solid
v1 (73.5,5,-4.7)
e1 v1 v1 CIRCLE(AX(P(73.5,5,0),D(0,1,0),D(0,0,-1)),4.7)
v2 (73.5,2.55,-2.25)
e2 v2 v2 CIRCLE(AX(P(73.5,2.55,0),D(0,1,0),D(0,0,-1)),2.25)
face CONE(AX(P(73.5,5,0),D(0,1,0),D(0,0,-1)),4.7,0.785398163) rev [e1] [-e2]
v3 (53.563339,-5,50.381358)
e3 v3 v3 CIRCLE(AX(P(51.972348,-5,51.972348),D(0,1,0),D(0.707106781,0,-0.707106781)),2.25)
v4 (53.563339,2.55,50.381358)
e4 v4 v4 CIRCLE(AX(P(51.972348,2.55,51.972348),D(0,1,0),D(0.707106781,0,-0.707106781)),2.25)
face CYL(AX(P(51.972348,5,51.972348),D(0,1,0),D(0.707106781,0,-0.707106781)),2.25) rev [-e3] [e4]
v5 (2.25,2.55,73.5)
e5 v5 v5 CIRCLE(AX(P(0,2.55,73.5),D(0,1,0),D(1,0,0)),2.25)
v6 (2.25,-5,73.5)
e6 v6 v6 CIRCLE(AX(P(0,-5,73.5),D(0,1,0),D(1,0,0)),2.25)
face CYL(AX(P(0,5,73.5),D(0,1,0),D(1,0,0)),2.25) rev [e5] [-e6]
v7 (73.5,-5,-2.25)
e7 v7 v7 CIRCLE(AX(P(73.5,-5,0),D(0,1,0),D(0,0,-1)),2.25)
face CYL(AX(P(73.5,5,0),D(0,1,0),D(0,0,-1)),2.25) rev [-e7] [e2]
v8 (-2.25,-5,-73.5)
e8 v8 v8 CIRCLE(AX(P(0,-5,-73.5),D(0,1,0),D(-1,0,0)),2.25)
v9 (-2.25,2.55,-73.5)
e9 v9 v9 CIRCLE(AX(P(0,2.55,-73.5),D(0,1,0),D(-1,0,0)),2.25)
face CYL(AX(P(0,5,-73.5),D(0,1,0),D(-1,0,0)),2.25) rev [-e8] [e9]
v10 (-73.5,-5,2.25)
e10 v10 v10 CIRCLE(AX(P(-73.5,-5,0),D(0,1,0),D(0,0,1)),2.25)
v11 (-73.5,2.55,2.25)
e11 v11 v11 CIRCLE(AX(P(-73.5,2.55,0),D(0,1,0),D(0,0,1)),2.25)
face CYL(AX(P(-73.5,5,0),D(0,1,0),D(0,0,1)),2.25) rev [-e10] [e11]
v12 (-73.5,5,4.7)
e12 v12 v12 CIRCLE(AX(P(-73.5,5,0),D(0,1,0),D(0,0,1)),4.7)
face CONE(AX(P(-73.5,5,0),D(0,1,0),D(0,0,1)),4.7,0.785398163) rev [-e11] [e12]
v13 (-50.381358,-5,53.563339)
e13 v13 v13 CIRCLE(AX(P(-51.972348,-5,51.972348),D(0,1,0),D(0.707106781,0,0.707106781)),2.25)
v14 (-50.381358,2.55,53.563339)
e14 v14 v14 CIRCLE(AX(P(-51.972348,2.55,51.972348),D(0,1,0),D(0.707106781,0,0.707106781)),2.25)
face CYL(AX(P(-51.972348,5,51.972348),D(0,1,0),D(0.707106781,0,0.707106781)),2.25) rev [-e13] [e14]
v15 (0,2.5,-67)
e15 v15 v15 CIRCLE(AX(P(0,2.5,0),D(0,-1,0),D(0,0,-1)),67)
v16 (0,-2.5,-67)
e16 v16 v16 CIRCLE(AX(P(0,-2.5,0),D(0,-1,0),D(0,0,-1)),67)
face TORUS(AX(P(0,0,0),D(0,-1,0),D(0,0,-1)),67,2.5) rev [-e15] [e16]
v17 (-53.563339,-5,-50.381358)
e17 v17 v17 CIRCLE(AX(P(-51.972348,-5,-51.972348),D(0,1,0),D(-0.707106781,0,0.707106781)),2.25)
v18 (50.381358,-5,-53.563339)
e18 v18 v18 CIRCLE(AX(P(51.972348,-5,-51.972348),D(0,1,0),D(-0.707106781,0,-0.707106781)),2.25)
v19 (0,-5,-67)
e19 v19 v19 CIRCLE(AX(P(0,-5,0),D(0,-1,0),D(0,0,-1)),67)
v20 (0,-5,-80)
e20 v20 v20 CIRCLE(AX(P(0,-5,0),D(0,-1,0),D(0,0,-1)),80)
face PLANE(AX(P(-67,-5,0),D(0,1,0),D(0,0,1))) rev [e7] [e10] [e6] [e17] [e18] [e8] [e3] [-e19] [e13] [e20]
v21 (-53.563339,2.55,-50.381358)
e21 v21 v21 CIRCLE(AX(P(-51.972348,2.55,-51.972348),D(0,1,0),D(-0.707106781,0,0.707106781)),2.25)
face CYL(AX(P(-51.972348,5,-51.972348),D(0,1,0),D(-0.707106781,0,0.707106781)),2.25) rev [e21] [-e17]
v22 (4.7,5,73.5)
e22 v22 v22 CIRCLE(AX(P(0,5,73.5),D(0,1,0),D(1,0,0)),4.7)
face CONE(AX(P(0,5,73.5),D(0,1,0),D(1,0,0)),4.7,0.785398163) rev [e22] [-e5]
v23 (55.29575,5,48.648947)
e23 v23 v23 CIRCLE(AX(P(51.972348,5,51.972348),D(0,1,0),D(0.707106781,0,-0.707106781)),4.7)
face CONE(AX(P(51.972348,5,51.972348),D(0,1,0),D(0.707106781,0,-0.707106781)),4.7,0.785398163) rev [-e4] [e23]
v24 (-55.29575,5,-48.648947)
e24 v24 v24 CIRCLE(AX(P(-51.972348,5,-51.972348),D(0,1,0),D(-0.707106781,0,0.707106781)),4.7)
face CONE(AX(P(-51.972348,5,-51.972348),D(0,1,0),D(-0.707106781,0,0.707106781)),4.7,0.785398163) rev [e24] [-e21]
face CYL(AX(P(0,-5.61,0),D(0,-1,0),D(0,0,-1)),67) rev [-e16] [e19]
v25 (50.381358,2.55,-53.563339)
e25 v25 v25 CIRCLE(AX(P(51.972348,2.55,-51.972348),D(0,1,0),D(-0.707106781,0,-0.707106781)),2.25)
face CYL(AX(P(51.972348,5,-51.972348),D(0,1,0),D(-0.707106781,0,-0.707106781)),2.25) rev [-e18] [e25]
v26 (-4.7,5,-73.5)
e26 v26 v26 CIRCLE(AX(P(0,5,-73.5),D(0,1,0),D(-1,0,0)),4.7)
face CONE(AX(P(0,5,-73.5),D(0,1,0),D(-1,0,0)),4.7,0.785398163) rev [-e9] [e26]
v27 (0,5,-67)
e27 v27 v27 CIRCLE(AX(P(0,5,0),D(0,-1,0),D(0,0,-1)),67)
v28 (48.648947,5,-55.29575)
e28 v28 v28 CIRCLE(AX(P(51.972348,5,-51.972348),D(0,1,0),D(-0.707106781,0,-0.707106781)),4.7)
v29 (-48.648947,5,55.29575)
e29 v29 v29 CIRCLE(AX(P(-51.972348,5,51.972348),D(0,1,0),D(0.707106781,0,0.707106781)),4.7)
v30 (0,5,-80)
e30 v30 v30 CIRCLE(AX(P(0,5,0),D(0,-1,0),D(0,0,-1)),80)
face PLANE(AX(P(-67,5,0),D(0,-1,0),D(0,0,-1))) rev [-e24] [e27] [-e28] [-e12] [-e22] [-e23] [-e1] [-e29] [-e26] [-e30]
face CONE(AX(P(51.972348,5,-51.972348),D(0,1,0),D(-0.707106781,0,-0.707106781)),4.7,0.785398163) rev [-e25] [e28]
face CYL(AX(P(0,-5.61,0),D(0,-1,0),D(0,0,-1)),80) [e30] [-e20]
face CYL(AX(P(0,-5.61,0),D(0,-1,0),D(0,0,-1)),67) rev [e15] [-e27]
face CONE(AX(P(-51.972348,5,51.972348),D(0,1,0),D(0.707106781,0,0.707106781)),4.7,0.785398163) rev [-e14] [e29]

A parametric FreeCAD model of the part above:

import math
import FreeCAD as App
import Part
import Sketcher
from FreeCAD import Vector
Q = App.Units.Quantity

doc = App.newDocument("Part")
body = doc.addObject("PartDesign::Body", "Body")

# Sketch on XY plane
sketch1 = body.newObject("Sketcher::SketchObject", "Sketch")
sketch1.AttachmentSupport = (doc.getObject("XY_Plane"), [""])
sketch1.MapMode = "FlatFace"
sketch1.addGeometry([
    Part.LineSegment(Vector(-67, -5, 0), Vector(-67, -2.5, 0)),  # 0
    Part.ArcOfCircle(Part.Circle(Vector(-67, 0, 0), Vector(0, 0, 1), 2.5), math.radians(90), math.radians(270)),  # 1
    Part.LineSegment(Vector(-67, 2.5, 0), Vector(-67, 5, 0)),  # 2
    Part.LineSegment(Vector(-67, 5, 0), Vector(-80, 5, 0)),  # 3
    Part.LineSegment(Vector(-80, 5, 0), Vector(-80, -5, 0)),  # 4
    Part.LineSegment(Vector(-80, -5, 0), Vector(-67, -5, 0)),  # 5
], False)
sketch1.addConstraint([
    Sketcher.Constraint("Coincident", 0, 2, 1, 2),
    Sketcher.Constraint("Coincident", 1, 1, 2, 1),
    Sketcher.Constraint("Coincident", 2, 2, 3, 1),
    Sketcher.Constraint("Coincident", 3, 2, 4, 1),
    Sketcher.Constraint("Coincident", 4, 2, 5, 1),
    Sketcher.Constraint("Coincident", 5, 2, 0, 1),
    Sketcher.Constraint("Vertical", 0),
    Sketcher.Constraint("Vertical", 2),
    Sketcher.Constraint("Horizontal", 3),
    Sketcher.Constraint("Vertical", 4),
    Sketcher.Constraint("Horizontal", 5),
    Sketcher.Constraint("Symmetric", 0, 2, 1, 1, -1),
    Sketcher.Constraint("Vertical", 1, 3, 0, 2),
    Sketcher.Constraint("Equal", 0, 2),
    Sketcher.Constraint("Radius", 1, Q("2.5 mm")),
    Sketcher.Constraint("DistanceX", 3, 2, 3, 1, Q("13 mm")),
    Sketcher.Constraint("DistanceY", 4, 2, 4, 1, Q("10 mm")),
    Sketcher.Constraint("DistanceX", 1, 3, -1, 1, Q("67 mm")),
])
revolution = body.newObject("PartDesign::Revolution", "Revolution")
revolution.Profile = sketch1
revolution.ReferenceAxis = (sketch1, ["V_Axis"])
revolution.Angle = 360

# Sketch on XZ plane
sketch2 = body.newObject("Sketcher::SketchObject", "Sketch001")
sketch2.AttachmentSupport = (doc.getObject("XZ_Plane"), [""])
sketch2.MapMode = "FlatFace"
sketch2.AttachmentOffset = App.Placement(Vector(0, 0, -5), App.Rotation())
sketch2.addGeometry(Part.Circle(Vector(-73.5, 0, 0), Vector(0, 0, 1), 2.25), False)
sketch2.addConstraint([
    Sketcher.Constraint("PointOnObject", 0, 3, -1),
    Sketcher.Constraint("Diameter", 0, Q("4.5 mm")),
    Sketcher.Constraint("DistanceX", 0, 3, -1, 1, Q("73.5 mm")),
])
doc.recompute()
hole = body.newObject("PartDesign::Hole", "Hole")
hole.Profile = sketch2
hole.ThreadType = "None"
hole.Diameter = 4.5
hole.DepthType = "ThroughAll"
hole.HoleCutType = "Countersink"
hole.HoleCutDiameter = 9.4
hole.HoleCutCountersinkAngle = 90
hole.Reversed = True
doc.recompute()

polarpattern = body.newObject("PartDesign::PolarPattern", "PolarPattern")
polarpattern.Originals = [hole]
polarpattern.Axis = (doc.getObject("Y_Axis"), [""])
polarpattern.Angle = 360
polarpattern.Occurrences = 8
body.Tip = polarpattern

doc.recompute()
